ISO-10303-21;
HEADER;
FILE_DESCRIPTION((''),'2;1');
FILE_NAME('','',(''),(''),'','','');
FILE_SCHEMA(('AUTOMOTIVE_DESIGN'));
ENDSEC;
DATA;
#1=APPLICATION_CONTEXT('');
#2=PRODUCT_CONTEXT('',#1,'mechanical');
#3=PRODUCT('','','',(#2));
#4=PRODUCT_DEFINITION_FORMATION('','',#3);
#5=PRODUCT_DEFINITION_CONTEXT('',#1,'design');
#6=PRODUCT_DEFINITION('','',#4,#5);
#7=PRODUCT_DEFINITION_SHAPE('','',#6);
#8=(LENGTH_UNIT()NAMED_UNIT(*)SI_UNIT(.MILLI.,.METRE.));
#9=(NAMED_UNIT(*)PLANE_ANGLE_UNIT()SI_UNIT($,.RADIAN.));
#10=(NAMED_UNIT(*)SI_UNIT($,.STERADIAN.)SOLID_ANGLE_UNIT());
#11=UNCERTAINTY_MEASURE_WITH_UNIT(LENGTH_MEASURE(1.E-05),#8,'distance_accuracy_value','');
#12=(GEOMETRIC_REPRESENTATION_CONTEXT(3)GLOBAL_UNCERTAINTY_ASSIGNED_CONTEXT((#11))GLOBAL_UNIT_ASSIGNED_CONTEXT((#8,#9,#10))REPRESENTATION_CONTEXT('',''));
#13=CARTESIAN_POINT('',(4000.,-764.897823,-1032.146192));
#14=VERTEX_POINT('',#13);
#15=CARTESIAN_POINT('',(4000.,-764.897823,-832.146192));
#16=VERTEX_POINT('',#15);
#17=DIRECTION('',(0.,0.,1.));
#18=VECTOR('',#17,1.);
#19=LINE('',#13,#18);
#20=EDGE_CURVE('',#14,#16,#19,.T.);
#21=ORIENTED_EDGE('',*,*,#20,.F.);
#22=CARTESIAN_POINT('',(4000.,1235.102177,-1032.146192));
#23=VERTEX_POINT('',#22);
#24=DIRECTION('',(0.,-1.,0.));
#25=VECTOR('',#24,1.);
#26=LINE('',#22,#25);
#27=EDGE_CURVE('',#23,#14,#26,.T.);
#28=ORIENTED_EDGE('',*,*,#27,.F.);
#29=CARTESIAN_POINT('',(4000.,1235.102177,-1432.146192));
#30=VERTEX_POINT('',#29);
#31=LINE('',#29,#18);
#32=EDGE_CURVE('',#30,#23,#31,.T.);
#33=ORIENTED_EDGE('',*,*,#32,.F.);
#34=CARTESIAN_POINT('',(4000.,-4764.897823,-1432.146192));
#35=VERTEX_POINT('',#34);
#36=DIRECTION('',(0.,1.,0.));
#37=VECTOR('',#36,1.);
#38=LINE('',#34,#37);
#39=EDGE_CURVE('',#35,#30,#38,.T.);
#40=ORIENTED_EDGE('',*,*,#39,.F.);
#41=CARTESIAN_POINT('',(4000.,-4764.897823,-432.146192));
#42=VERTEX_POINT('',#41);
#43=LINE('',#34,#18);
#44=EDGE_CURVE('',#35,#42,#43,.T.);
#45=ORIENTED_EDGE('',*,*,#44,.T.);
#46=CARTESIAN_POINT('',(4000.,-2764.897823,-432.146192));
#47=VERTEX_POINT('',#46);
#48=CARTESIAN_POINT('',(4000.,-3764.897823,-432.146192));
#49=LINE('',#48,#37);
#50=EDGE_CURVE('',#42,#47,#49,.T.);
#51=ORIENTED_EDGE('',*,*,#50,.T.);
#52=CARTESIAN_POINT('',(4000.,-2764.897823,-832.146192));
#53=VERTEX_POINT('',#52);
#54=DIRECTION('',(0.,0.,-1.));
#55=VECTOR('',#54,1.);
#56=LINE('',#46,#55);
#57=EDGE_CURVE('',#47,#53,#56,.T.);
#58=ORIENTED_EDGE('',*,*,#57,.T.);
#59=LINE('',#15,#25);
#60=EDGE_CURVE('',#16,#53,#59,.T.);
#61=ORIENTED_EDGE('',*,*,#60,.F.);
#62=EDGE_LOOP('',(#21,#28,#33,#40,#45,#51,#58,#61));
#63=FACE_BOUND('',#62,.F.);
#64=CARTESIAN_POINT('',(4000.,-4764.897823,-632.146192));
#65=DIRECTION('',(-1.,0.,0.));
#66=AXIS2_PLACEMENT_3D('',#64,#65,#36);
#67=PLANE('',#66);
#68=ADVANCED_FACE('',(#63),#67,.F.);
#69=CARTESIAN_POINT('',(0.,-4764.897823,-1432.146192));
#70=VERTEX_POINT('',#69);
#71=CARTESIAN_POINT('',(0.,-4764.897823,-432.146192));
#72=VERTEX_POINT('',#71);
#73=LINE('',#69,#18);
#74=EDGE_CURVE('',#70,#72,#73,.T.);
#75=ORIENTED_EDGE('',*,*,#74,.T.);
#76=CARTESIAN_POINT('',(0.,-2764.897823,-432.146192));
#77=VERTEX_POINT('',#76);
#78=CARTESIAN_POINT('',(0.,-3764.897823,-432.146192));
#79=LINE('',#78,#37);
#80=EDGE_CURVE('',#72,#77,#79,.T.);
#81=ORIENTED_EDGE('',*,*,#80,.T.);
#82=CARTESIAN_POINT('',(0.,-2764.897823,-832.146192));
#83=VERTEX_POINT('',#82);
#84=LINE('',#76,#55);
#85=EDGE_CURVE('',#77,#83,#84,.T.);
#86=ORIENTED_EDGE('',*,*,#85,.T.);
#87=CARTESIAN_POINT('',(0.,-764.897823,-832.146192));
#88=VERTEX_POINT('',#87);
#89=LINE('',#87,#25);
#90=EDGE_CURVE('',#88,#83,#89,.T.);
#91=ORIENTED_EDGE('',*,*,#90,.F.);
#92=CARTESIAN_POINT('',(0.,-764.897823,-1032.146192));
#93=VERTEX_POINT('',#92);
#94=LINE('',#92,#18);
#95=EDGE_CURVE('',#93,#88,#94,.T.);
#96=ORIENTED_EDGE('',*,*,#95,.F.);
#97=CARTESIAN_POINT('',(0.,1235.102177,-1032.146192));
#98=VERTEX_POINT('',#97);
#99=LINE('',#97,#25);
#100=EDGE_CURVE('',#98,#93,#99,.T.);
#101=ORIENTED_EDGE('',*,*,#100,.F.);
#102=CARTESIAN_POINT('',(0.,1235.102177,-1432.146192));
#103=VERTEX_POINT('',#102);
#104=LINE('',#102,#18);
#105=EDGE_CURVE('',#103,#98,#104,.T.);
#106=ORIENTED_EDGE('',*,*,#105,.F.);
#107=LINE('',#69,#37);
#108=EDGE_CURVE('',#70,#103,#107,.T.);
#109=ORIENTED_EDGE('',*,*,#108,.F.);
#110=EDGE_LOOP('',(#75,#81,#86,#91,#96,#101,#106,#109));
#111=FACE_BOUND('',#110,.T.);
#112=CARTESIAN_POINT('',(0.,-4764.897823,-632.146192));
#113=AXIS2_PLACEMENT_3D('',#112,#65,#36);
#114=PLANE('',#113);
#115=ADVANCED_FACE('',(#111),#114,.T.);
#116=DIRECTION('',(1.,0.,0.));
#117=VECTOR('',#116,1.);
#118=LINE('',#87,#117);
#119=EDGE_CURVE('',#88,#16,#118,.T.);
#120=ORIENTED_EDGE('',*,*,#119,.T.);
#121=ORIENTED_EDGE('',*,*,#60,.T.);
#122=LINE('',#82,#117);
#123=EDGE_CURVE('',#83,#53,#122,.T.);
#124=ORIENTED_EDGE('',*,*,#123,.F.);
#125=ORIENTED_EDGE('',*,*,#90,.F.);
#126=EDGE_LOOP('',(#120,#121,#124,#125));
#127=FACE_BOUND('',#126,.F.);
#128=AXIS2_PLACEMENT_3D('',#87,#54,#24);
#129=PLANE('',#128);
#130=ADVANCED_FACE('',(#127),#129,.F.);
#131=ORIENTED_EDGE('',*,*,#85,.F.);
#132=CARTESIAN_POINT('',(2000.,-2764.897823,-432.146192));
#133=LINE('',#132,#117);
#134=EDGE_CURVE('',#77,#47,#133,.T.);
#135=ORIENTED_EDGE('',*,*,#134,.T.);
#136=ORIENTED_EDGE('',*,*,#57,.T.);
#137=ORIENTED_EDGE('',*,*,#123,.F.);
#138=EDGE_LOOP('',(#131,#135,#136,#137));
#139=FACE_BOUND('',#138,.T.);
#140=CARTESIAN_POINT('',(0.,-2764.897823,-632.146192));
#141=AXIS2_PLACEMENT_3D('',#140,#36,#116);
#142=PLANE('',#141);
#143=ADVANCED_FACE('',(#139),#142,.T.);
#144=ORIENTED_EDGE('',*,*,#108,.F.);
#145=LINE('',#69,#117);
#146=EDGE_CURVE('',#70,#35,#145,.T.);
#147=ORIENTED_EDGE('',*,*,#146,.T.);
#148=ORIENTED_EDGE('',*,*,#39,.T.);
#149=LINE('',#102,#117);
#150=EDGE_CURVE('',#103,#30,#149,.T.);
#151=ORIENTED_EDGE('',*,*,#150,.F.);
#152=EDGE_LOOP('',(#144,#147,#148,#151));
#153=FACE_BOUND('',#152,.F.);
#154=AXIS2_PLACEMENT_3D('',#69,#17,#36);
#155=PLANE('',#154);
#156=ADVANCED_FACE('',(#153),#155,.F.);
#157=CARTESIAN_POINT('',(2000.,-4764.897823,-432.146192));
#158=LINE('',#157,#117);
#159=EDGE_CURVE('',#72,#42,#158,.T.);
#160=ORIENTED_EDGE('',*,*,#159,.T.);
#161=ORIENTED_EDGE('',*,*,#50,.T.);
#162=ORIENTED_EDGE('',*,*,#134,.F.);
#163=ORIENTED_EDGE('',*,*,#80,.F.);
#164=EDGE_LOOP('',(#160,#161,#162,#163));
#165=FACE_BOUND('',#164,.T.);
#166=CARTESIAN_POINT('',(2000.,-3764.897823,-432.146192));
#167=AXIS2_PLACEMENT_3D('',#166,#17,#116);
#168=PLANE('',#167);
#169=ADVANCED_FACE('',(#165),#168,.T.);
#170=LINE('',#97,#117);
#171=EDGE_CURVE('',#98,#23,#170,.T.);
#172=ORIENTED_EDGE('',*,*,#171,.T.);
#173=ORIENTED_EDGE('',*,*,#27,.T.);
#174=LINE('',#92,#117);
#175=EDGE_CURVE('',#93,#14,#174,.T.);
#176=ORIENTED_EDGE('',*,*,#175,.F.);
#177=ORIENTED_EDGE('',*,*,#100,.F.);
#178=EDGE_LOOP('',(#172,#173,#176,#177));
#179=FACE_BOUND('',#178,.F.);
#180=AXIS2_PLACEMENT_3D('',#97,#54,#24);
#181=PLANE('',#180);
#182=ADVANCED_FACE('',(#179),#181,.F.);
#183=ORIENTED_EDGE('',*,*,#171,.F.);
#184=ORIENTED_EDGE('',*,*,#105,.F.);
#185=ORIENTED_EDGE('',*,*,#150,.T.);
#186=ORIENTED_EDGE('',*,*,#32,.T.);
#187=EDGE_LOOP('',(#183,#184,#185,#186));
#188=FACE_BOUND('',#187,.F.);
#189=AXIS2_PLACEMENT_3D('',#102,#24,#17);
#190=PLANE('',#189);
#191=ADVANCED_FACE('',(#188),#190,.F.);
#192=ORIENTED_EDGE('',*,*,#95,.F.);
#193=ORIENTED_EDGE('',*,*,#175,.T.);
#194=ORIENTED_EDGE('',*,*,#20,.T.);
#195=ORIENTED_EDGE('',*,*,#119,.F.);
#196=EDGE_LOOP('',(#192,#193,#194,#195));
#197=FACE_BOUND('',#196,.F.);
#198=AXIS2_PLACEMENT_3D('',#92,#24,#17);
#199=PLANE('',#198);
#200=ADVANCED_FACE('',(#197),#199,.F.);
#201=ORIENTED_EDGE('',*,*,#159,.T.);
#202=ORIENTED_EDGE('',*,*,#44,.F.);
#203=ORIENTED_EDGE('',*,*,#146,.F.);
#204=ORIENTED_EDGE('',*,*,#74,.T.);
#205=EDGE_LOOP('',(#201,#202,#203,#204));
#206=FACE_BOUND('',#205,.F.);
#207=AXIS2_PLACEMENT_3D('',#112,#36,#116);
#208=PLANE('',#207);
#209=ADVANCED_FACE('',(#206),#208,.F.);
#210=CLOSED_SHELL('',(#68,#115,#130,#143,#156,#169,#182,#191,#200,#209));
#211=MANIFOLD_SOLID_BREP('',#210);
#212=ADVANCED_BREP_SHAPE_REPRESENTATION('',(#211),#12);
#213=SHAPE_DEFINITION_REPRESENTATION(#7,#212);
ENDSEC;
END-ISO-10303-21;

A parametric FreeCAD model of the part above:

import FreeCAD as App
import Part
import Sketcher
Q = App.Units.Quantity


def add_polygon(sketch, points):
    """Adds a closed chain of lines whose ends are joined by coincident constraints."""
    first, n = sketch.GeometryCount, len(points)
    for a, b in zip(points, points[1:] + points[:1]):
        sketch.addGeometry(Part.LineSegment(App.Vector(*a, 0), App.Vector(*b, 0)), False)
    for i in range(n):
        sketch.addConstraint(Sketcher.Constraint("Coincident", first + i, 2, first + (i + 1) % n, 1))

doc = App.newDocument("Part")
body = doc.addObject("PartDesign::Body", "Body")

# Sketch on YZ plane
sketch1 = doc.addObject("Sketcher::SketchObject", "Sketch")
body.addObject(sketch1)
sketch1.AttachmentSupport = (doc.YZ_Plane, [""])
sketch1.MapMode = "FlatFace"
add_polygon(sketch1, [(-4764.897823, -632.146192), (-4764.897823, -1432.146192), (1235.102177, -1432.146192), (1235.102177, -1032.146192), (-764.897823, -1032.146192), (-764.897823, -832.146192), (-2764.897823, -832.146192), (-2764.897823, -632.146192)])  # lines 0-7
sketch1.addConstraint([
    Sketcher.Constraint("Vertical", 0),
    Sketcher.Constraint("Horizontal", 1),
    Sketcher.Constraint("Vertical", 2),
    Sketcher.Constraint("Horizontal", 3),
    Sketcher.Constraint("Vertical", 4),
    Sketcher.Constraint("Horizontal", 5),
    Sketcher.Constraint("Vertical", 6),
    Sketcher.Constraint("Horizontal", 7),
    Sketcher.Constraint("Equal", 3, 5),
    Sketcher.Constraint("Equal", 5, 7),
    Sketcher.Constraint("Equal", 4, 6),
    Sketcher.Constraint("DistanceX", 1, 1, 1, 2, Q("6000 mm")),
    Sketcher.Constraint("DistanceY", 0, 2, 0, 1, Q("800 mm")),
    Sketcher.Constraint("DistanceY", 2, 1, 2, 2, Q("400 mm")),
    Sketcher.Constraint("DistanceY", 0, 2, -1, 1, Q("1432.146192 mm")),
    Sketcher.Constraint("DistanceX", 0, 2, -1, 1, Q("4764.897823 mm")),
])
pad1 = doc.addObject("PartDesign::Pad", "Pad")
body.addObject(pad1)
pad1.Profile = sketch1
pad1.Length = 4000

# Sketch on XY plane
sketch2 = doc.addObject("Sketcher::SketchObject", "Sketch001")
body.addObject(sketch2)
sketch2.AttachmentSupport = (doc.XY_Plane, [""])
sketch2.MapMode = "FlatFace"
sketch2.AttachmentOffset = App.Placement(App.Vector(0, 0, -632.146192), App.Rotation())
add_polygon(sketch2, [(0, -2764.897823), (0, -4764.897823), (4000, -4764.897823), (4000, -2764.897823)])  # lines 0-3
sketch2.addConstraint([
    Sketcher.Constraint("Vertical", 0),
    Sketcher.Constraint("Horizontal", 1),
    Sketcher.Constraint("Vertical", 2),
    Sketcher.Constraint("Horizontal", 3),
    Sketcher.Constraint("PointOnObject", 0, 2, -2),
    Sketcher.Constraint("DistanceX", 1, 1, 1, 2, Q("4000 mm")),
    Sketcher.Constraint("DistanceY", 0, 2, 0, 1, Q("2000 mm")),
    Sketcher.Constraint("DistanceY", 0, 2, -1, 1, Q("4764.897823 mm")),
])
pad2 = doc.addObject("PartDesign::Pad", "Pad001")
body.addObject(pad2)
pad2.Profile = sketch2
pad2.Length = 200

doc.recompute()
